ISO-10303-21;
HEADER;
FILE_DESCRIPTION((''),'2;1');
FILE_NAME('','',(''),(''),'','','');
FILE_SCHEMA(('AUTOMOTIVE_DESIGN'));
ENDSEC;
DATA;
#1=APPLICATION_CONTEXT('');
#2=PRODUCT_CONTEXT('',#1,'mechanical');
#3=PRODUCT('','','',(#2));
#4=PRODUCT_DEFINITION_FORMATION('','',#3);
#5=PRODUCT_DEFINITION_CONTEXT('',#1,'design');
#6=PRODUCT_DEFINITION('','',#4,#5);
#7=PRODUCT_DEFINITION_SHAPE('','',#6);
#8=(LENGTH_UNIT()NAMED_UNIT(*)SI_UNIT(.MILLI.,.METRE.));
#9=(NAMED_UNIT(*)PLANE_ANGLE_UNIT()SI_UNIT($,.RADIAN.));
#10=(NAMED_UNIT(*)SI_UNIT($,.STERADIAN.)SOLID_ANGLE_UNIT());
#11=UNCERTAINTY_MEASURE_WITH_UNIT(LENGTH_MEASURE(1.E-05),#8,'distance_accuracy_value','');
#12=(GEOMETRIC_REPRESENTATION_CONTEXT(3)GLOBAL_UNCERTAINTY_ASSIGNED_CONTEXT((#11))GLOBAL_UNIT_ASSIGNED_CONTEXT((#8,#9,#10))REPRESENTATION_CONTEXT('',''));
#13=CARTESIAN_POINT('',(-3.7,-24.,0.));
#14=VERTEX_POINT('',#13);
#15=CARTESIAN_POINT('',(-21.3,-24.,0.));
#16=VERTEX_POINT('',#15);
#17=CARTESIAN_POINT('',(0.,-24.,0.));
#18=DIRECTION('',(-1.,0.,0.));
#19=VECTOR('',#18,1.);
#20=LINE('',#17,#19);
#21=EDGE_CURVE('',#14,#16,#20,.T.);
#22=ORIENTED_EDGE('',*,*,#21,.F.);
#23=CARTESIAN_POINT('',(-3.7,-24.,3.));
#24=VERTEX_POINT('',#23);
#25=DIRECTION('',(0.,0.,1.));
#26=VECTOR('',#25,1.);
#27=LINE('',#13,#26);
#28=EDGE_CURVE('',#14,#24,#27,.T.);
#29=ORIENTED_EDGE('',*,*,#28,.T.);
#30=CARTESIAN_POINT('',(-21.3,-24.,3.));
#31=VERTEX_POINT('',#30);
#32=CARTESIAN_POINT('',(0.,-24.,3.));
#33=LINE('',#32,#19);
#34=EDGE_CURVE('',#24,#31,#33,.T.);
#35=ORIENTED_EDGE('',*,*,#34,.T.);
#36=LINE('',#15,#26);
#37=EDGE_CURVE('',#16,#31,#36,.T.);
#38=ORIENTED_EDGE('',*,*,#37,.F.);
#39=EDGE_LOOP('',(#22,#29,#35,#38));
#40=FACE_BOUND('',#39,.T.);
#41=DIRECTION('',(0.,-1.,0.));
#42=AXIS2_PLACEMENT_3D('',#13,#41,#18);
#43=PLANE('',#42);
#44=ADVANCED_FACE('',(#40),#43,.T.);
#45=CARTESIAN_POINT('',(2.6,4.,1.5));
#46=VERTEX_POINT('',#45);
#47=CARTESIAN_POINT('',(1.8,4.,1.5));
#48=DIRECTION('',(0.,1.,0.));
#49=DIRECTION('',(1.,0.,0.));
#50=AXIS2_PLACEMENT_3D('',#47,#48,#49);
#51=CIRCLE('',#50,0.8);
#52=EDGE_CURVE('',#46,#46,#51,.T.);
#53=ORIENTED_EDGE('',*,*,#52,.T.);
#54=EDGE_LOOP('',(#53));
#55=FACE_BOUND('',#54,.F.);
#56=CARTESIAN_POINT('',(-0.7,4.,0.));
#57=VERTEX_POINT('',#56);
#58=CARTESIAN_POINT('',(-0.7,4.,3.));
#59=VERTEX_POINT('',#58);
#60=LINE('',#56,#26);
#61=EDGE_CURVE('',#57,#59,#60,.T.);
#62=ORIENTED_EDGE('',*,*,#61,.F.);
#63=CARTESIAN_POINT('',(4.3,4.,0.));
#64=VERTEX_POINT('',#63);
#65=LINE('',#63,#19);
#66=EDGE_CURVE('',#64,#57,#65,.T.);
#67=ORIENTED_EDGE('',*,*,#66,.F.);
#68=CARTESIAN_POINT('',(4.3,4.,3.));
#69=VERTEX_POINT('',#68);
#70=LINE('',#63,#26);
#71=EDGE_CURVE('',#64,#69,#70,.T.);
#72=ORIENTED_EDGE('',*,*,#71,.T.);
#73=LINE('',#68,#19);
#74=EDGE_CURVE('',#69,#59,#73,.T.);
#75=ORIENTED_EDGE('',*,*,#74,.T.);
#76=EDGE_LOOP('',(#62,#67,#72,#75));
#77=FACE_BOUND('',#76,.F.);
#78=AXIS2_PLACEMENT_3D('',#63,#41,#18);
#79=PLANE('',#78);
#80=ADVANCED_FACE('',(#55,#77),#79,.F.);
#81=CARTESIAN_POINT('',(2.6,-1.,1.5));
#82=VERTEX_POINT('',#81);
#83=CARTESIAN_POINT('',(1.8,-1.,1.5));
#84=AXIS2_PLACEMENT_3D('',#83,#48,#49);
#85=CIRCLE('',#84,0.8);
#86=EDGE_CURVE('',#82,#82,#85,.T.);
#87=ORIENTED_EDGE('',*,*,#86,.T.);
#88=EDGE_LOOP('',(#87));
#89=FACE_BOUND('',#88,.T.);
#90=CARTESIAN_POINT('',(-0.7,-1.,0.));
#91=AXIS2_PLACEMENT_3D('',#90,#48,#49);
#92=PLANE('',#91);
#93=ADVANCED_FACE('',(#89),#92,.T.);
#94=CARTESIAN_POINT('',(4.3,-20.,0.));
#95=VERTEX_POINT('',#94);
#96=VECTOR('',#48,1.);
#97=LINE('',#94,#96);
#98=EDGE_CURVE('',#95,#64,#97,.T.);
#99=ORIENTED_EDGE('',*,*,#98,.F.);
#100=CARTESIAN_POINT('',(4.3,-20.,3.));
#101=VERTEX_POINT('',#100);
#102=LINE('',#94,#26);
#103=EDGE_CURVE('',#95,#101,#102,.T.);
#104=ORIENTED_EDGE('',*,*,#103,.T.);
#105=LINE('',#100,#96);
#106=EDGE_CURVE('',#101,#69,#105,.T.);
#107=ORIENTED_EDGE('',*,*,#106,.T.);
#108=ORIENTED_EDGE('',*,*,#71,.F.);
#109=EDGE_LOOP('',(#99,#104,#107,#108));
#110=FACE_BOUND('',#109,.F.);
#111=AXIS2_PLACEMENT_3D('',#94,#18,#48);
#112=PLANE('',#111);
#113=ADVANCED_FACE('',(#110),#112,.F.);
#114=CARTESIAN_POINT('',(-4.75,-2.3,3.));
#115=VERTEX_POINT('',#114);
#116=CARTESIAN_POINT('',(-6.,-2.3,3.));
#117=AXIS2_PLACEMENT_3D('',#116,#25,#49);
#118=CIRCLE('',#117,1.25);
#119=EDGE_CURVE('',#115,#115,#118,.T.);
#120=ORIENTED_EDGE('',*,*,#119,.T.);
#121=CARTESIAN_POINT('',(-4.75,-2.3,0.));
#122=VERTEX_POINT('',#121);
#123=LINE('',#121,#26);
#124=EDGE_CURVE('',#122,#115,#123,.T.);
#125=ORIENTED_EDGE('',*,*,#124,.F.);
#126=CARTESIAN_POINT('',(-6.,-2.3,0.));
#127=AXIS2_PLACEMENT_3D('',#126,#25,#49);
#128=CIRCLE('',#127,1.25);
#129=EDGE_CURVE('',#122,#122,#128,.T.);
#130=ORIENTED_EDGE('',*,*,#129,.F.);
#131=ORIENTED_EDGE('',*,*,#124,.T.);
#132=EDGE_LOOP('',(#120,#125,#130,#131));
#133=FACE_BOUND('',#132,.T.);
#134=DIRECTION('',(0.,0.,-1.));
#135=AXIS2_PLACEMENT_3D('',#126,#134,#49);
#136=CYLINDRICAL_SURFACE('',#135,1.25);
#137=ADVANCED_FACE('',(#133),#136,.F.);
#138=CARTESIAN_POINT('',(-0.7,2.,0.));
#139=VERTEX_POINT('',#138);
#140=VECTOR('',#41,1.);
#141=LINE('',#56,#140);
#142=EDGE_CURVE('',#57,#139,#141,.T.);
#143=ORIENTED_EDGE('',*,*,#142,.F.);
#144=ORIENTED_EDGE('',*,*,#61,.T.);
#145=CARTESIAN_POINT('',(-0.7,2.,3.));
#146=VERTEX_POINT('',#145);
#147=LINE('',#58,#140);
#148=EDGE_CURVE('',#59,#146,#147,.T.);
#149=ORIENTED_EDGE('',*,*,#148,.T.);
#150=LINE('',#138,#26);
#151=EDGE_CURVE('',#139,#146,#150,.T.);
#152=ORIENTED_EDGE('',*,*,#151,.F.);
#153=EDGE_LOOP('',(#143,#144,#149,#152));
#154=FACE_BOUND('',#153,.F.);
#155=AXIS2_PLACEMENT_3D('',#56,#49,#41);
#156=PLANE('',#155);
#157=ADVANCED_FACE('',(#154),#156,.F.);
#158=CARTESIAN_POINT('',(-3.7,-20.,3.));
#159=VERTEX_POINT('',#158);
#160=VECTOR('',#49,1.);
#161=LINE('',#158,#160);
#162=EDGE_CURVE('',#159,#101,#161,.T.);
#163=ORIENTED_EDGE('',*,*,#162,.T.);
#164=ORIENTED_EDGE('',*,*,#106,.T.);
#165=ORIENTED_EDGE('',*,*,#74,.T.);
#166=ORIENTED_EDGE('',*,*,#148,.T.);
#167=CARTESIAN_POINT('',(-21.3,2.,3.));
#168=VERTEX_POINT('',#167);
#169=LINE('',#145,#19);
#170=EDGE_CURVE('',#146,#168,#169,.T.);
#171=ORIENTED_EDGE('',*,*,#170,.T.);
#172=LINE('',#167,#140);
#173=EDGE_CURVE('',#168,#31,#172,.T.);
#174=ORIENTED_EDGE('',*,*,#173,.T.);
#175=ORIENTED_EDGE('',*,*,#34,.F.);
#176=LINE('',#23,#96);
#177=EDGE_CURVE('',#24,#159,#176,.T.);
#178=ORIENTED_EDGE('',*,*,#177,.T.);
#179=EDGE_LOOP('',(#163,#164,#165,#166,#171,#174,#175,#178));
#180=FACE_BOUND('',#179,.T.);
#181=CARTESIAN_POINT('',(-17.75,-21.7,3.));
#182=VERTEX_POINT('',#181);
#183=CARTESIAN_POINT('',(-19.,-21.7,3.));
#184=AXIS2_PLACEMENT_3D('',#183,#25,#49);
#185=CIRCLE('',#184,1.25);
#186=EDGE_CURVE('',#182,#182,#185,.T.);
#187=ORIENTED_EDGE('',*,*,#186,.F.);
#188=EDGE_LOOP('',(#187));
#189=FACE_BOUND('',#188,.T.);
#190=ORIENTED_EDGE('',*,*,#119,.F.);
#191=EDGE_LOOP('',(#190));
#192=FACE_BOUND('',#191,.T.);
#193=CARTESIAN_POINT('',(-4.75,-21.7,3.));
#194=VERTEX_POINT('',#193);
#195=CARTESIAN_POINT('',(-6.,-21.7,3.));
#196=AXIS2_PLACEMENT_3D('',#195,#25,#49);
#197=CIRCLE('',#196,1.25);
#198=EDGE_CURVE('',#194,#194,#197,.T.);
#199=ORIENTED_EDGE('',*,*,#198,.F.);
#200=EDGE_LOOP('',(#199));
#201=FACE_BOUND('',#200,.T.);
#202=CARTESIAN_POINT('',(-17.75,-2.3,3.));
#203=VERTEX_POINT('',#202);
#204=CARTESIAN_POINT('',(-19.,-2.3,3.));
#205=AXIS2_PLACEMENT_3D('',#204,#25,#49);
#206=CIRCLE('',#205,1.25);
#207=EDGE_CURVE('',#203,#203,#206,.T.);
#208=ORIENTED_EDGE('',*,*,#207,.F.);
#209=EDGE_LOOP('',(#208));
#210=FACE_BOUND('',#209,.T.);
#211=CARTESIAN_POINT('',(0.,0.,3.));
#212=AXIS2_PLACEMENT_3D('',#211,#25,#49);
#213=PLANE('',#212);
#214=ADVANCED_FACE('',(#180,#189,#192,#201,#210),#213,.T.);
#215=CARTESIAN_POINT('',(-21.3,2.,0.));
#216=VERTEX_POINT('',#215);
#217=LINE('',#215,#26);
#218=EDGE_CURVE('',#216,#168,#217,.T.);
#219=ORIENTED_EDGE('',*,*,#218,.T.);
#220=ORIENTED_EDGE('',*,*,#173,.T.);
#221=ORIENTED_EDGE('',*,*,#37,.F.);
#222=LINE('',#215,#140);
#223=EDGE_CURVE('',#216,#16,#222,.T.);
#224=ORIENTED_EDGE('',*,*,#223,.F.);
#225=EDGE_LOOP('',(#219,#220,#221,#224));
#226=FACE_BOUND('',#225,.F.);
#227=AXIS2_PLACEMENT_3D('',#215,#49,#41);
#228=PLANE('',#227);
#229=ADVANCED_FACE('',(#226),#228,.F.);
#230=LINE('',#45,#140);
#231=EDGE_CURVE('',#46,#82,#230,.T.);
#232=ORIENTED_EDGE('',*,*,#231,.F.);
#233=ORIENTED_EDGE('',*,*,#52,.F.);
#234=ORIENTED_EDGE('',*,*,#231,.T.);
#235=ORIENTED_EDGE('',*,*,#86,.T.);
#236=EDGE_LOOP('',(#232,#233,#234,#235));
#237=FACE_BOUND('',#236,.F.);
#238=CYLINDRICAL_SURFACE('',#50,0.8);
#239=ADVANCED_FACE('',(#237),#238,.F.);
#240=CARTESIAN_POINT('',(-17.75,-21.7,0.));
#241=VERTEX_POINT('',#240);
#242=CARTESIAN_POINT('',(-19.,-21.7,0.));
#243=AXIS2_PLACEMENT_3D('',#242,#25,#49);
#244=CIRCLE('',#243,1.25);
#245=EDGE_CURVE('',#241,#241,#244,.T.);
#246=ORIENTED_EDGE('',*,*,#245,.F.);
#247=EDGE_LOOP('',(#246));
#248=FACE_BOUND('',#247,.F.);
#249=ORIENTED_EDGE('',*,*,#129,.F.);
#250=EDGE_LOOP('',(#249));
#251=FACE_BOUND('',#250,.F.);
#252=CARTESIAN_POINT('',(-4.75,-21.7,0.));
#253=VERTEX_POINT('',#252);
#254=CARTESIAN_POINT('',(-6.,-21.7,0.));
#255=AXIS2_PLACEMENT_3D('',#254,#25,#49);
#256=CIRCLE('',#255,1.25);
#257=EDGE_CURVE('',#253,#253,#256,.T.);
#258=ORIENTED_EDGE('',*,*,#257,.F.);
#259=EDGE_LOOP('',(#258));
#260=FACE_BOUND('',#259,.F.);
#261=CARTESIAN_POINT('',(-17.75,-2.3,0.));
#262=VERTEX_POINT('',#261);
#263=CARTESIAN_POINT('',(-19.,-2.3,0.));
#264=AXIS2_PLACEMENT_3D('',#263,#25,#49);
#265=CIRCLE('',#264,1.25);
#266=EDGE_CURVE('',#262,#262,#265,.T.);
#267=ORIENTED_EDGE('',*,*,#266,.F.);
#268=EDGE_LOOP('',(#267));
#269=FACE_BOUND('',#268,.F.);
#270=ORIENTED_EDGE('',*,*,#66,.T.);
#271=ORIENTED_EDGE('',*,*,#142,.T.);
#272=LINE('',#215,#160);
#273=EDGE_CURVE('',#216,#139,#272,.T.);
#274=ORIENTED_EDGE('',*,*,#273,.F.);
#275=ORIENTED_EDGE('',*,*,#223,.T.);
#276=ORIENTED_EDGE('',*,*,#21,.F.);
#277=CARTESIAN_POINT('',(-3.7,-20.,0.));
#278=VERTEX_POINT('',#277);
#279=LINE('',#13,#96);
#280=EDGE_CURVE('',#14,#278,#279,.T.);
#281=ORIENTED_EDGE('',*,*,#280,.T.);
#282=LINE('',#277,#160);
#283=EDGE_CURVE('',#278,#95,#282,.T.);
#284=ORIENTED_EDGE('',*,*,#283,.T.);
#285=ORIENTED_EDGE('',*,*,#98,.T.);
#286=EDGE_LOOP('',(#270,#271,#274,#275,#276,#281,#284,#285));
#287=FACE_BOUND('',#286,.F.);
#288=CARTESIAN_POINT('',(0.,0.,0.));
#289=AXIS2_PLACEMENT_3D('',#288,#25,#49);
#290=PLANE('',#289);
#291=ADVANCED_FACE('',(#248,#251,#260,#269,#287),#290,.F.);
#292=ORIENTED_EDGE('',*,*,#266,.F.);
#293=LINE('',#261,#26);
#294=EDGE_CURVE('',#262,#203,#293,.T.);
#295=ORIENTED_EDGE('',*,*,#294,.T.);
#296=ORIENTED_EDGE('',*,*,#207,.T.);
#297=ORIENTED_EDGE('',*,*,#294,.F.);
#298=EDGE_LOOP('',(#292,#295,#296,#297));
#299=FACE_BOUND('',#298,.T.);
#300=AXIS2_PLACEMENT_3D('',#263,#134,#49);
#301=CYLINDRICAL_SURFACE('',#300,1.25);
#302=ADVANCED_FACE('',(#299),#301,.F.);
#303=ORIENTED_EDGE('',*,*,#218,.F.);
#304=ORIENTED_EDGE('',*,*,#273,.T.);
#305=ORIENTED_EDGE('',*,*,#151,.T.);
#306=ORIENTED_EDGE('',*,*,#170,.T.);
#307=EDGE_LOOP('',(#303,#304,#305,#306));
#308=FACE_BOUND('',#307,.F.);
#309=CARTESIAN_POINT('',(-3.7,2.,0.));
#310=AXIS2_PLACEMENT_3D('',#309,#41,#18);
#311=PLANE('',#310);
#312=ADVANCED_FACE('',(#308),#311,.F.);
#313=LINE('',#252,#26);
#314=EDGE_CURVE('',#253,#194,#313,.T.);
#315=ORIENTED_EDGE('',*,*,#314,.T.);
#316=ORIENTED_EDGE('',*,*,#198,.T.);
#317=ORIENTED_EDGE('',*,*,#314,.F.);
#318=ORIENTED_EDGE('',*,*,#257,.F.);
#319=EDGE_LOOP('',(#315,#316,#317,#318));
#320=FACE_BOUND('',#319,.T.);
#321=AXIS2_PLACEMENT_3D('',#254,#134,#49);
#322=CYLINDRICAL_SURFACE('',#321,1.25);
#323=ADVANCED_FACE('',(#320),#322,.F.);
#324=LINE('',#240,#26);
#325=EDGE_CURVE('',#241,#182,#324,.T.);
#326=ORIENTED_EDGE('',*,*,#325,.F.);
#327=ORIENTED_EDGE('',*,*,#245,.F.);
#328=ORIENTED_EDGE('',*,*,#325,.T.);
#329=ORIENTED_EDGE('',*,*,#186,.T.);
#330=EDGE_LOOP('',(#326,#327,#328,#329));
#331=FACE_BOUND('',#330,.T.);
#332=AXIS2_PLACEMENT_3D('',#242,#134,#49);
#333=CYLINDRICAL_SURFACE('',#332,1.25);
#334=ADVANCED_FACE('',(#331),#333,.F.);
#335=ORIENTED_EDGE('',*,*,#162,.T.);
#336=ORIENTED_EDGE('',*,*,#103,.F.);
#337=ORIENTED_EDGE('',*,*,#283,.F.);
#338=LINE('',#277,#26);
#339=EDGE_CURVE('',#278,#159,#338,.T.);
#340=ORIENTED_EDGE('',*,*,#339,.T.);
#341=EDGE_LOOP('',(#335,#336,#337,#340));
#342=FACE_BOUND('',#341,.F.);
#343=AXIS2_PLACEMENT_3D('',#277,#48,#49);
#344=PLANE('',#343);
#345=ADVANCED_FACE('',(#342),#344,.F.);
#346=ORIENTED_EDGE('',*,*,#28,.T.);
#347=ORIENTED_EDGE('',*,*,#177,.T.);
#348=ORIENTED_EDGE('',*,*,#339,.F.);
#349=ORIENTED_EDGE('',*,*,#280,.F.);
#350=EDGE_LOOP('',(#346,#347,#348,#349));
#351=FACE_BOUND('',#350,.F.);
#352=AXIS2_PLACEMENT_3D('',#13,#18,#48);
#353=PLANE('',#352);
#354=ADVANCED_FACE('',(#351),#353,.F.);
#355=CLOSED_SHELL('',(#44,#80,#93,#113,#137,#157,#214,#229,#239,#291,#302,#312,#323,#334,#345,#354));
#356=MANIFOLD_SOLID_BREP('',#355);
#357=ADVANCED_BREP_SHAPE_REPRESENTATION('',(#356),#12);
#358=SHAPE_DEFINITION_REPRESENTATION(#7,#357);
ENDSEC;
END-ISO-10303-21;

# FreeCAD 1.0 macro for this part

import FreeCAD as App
import Part
import Sketcher
from FreeCAD import Vector

doc = App.newDocument("Part")
body = doc.addObject("PartDesign::Body", "Body")

sketch1 = doc.addObject("Sketcher::SketchObject", "Sketch")
body.addObject(sketch1)
sketch1.AttachmentSupport = (doc.XY_Plane, [""])
sketch1.MapMode = "FlatFace"
sketch1.addGeometry([
    Part.LineSegment(Vector(-21.3, -24, 0), Vector(-3.7, -24, 0)),
    Part.LineSegment(Vector(-3.7, -24, 0), Vector(-3.7, -20, 0)),
    Part.LineSegment(Vector(-3.7, -20, 0), Vector(4.3, -20, 0)),
    Part.LineSegment(Vector(4.3, -20, 0), Vector(4.3, 4, 0)),
    Part.LineSegment(Vector(4.3, 4, 0), Vector(-0.7, 4, 0)),
    Part.LineSegment(Vector(-0.7, 4, 0), Vector(-0.7, 2, 0)),
    Part.LineSegment(Vector(-0.7, 2, 0), Vector(-21.3, 2, 0)),
    Part.LineSegment(Vector(-21.3, 2, 0), Vector(-21.3, -24, 0)),
    Part.Circle(Vector(-19, -21.7, 0), Vector(0, 0, 1), 1.2),
    Part.Circle(Vector(-6, -21.7, 0), Vector(0, 0, 1), 1.2),
    Part.Circle(Vector(-19, -2.3, 0), Vector(0, 0, 1), 1.2),
    Part.Circle(Vector(-6, -2.3, 0), Vector(0, 0, 1), 1.2),
], False)
sketch1.addConstraint([
    Sketcher.Constraint("Coincident", 0, 2, 1, 1),
    Sketcher.Constraint("Coincident", 1, 2, 2, 1),
    Sketcher.Constraint("Coincident", 2, 2, 3, 1),
    Sketcher.Constraint("Coincident", 3, 2, 4, 1),
    Sketcher.Constraint("Coincident", 4, 2, 5, 1),
    Sketcher.Constraint("Coincident", 5, 2, 6, 1),
    Sketcher.Constraint("Coincident", 6, 2, 7, 1),
    Sketcher.Constraint("Coincident", 7, 2, 0, 1),
    Sketcher.Constraint("Horizontal", 0),
    Sketcher.Constraint("Vertical", 1),
    Sketcher.Constraint("Horizontal", 2),
    Sketcher.Constraint("Vertical", 3),
    Sketcher.Constraint("Horizontal", 4),
    Sketcher.Constraint("Vertical", 5),
    Sketcher.Constraint("Horizontal", 6),
    Sketcher.Constraint("Vertical", 7),
    Sketcher.Constraint("Equal", 8, 9),
    Sketcher.Constraint("Equal", 9, 10),
    Sketcher.Constraint("Equal", 10, 11),
    Sketcher.Constraint("Horizontal", 8, 3, 9, 3),
    Sketcher.Constraint("Horizontal", 10, 3, 11, 3),
    Sketcher.Constraint("Vertical", 8, 3, 10, 3),
    Sketcher.Constraint("Vertical", 9, 3, 11, 3),
    Sketcher.Constraint("DistanceX", 4, 2, 4, 1, 5.0),
    Sketcher.Constraint("DistanceY", 3, 1, 3, 2, 24.0),
    Sketcher.Constraint("DistanceY", 5, 2, 5, 1, 2.0),
    Sketcher.Constraint("DistanceY", 7, 2, 7, 1, 26.0),
    Sketcher.Constraint("DistanceY", 0, 2, -1, 1, 24.0),
    Sketcher.Constraint("DistanceX", 1, 2, 4, 2, 3.0),
    Sketcher.Constraint("Diameter", 8, 2.5),
    Sketcher.Constraint("DistanceX", 0, 1, 0, 2, 17.6),
    Sketcher.Constraint("DistanceX", 8, 3, -1, 1, 19.0),
    Sketcher.Constraint("DistanceX", 9, 3, -1, 1, 6.0),
    Sketcher.Constraint("DistanceY", 8, 3, -1, 1, 21.7),
    Sketcher.Constraint("DistanceY", 10, 3, -1, 1, 2.3),
    Sketcher.Constraint("DistanceX", 0, 2, -1, 1, 3.7),
])
pad1 = doc.addObject("PartDesign::Pad", "Pad")
body.addObject(pad1)
pad1.Profile = sketch1
pad1.Length = 3

sketch2 = doc.addObject("Sketcher::SketchObject", "Sketch001")
body.addObject(sketch2)
sketch2.AttachmentSupport = (doc.XZ_Plane, [""])
sketch2.MapMode = "FlatFace"
sketch2.AttachmentOffset = App.Placement(Vector(0, 0, -4), App.Rotation())
sketch2.addGeometry(Part.Circle(Vector(1.8, 1.5, 0), Vector(0, 0, 1), 0.8), False)
sketch2.addConstraint([
    Sketcher.Constraint("Diameter", 0, 1.6),
    Sketcher.Constraint("DistanceX", -1, 1, 0, 3, 1.8),
    Sketcher.Constraint("DistanceY", -1, 1, 0, 3, 1.5),
])
pocket1 = doc.addObject("PartDesign::Pocket", "Pocket")
body.addObject(pocket1)
pocket1.Profile = sketch2
pocket1.Length = 5
pocket1.Reversed = True

doc.recompute()
